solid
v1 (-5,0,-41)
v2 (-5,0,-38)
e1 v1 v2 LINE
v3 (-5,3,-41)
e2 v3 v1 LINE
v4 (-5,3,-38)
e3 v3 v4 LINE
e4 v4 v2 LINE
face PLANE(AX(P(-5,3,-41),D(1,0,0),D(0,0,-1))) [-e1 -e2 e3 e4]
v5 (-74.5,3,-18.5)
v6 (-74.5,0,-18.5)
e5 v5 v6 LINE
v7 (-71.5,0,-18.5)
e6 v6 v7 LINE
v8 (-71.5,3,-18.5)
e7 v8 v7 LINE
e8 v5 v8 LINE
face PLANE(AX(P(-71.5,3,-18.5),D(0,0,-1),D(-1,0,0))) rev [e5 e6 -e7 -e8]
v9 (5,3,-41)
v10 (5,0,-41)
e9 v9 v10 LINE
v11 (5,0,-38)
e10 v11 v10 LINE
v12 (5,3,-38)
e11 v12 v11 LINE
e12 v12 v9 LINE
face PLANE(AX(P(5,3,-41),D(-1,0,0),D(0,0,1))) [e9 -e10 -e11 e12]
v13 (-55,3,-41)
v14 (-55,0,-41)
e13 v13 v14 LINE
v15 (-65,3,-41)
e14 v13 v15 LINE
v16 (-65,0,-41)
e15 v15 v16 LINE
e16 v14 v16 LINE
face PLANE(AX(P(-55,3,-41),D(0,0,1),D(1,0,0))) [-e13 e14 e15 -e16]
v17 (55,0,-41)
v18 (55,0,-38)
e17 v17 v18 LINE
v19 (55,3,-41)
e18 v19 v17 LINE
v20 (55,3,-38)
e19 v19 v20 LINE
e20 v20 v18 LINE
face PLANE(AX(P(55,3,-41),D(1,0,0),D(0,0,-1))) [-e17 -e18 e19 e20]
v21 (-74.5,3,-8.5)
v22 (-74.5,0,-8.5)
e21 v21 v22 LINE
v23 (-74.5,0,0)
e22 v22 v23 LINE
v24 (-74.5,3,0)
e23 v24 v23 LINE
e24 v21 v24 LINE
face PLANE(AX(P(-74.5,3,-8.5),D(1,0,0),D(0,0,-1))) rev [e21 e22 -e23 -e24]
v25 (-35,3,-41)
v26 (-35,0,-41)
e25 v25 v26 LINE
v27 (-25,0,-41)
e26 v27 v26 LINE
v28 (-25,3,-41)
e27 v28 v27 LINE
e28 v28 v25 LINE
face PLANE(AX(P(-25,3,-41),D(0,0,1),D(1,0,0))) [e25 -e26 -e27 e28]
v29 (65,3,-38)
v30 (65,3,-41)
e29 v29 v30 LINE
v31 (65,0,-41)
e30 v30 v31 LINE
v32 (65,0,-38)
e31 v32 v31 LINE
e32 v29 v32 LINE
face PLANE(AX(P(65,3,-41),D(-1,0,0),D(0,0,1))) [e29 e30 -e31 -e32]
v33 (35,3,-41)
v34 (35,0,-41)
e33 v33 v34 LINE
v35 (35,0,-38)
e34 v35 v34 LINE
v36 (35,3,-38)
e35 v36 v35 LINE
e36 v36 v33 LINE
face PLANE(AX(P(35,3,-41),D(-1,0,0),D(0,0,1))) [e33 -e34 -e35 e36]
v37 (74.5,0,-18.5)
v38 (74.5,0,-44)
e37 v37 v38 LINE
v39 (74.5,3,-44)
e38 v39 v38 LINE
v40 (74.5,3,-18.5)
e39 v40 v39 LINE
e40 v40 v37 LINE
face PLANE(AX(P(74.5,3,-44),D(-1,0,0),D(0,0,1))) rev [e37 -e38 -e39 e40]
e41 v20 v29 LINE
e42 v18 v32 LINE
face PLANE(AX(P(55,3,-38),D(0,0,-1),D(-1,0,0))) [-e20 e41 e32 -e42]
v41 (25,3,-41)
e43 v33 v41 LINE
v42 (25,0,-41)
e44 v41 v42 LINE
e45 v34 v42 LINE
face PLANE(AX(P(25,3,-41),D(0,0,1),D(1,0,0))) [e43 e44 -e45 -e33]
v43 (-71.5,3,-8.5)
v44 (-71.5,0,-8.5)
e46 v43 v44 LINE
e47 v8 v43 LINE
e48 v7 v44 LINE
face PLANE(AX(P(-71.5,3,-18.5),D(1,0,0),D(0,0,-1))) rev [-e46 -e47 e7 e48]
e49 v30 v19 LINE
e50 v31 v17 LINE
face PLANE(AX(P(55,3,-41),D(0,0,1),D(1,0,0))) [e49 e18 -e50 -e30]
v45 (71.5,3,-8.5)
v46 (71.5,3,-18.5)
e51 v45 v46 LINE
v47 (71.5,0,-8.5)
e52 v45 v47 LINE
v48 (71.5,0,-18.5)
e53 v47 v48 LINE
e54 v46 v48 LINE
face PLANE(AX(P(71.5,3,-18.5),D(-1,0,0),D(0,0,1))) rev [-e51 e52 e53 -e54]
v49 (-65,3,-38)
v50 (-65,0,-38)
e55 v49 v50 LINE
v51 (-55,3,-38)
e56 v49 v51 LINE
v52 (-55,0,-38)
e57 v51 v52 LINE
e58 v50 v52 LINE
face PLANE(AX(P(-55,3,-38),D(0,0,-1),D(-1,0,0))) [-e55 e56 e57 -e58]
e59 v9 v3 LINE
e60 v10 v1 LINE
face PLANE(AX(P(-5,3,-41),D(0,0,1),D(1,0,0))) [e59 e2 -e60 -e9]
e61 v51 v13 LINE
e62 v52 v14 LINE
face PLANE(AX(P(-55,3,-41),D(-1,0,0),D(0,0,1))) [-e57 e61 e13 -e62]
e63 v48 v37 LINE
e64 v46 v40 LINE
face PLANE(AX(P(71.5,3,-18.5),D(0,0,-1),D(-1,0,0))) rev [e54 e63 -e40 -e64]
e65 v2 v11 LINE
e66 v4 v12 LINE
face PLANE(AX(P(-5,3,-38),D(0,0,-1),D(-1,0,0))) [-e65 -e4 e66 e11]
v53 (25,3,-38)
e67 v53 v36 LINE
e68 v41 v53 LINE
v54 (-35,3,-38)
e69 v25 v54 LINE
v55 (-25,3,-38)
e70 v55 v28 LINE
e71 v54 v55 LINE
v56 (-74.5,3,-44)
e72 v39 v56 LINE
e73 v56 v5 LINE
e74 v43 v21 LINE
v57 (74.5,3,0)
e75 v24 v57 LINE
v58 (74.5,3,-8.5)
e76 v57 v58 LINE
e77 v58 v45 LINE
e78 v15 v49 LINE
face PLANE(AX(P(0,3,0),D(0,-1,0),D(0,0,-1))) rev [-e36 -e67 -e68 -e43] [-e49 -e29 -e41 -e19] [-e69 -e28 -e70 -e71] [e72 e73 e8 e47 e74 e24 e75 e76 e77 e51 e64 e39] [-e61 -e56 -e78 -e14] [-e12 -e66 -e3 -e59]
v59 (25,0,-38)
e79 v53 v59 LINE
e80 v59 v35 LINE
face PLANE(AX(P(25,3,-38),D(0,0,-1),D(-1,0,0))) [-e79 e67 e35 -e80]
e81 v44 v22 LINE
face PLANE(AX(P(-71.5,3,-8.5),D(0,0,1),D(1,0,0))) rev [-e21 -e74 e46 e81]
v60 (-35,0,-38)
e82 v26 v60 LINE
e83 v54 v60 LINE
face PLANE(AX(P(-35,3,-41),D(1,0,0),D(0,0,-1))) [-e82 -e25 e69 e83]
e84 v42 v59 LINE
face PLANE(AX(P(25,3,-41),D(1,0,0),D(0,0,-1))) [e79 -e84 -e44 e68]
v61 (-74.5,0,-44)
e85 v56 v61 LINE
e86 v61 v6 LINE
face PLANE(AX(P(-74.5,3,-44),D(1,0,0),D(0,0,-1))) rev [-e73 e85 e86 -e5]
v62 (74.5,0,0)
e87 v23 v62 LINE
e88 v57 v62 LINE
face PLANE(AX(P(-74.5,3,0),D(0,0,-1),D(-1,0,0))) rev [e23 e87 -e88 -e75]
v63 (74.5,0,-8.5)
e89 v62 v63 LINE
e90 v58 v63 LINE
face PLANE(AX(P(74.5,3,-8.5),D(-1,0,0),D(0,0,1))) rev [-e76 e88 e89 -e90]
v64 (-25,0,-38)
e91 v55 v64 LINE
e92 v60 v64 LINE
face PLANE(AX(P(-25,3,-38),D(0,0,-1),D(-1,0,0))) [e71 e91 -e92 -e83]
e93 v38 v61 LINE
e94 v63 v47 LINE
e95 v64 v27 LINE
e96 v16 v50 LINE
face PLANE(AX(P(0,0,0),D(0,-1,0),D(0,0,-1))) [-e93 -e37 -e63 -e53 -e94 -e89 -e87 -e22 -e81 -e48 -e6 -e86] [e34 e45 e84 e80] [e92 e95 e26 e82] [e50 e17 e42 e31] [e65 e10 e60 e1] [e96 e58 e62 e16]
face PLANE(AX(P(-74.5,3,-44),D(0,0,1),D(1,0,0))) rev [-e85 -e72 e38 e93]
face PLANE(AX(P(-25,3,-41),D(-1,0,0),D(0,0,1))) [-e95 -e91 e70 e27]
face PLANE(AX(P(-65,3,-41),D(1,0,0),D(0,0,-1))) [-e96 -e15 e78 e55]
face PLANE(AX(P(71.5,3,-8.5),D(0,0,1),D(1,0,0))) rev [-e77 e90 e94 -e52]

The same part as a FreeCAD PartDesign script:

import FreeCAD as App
import Part
import Sketcher
from FreeCAD import Vector
Q = App.Units.Quantity

doc = App.newDocument("Part")
body = doc.addObject("PartDesign::Body", "Body")

# Sketch on XZ plane
sketch1 = body.newObject("Sketcher::SketchObject", "Sketch")
sketch1.AttachmentSupport = (doc.getObject("XZ_Plane"), [""])
sketch1.MapMode = "FlatFace"
sketch1.addGeometry([
    Part.LineSegment(Vector(74.5, -44, 0), Vector(-74.5, -44, 0)),  # 0
    Part.LineSegment(Vector(-74.5, -44, 0), Vector(-74.5, -18.5, 0)),  # 1
    Part.LineSegment(Vector(-74.5, -18.5, 0), Vector(-71.5, -18.5, 0)),  # 2
    Part.LineSegment(Vector(-71.5, -18.5, 0), Vector(-71.5, -8.5, 0)),  # 3
    Part.LineSegment(Vector(-71.5, -8.5, 0), Vector(-74.5, -8.5, 0)),  # 4
    Part.LineSegment(Vector(-74.5, -8.5, 0), Vector(-74.5, 0, 0)),  # 5
    Part.LineSegment(Vector(-74.5, 0, 0), Vector(74.5, 0, 0)),  # 6
    Part.LineSegment(Vector(74.5, 0, 0), Vector(74.5, -8.5, 0)),  # 7
    Part.LineSegment(Vector(74.5, -8.5, 0), Vector(71.5, -8.5, 0)),  # 8
    Part.LineSegment(Vector(71.5, -8.5, 0), Vector(71.5, -18.5, 0)),  # 9
    Part.LineSegment(Vector(71.5, -18.5, 0), Vector(74.5, -18.5, 0)),  # 10
    Part.LineSegment(Vector(74.5, -18.5, 0), Vector(74.5, -44, 0)),  # 11
    Part.LineSegment(Vector(55, -38, 0), Vector(55, -41, 0)),  # 12
    Part.LineSegment(Vector(55, -41, 0), Vector(65, -41, 0)),  # 13
    Part.LineSegment(Vector(65, -41, 0), Vector(65, -38, 0)),  # 14
    Part.LineSegment(Vector(65, -38, 0), Vector(55, -38, 0)),  # 15
    Part.LineSegment(Vector(25, -38, 0), Vector(25, -41, 0)),  # 16
    Part.LineSegment(Vector(25, -41, 0), Vector(35, -41, 0)),  # 17
    Part.LineSegment(Vector(35, -41, 0), Vector(35, -38, 0)),  # 18
    Part.LineSegment(Vector(35, -38, 0), Vector(25, -38, 0)),  # 19
    Part.LineSegment(Vector(-5, -38, 0), Vector(-5, -41, 0)),  # 20
    Part.LineSegment(Vector(-5, -41, 0), Vector(5, -41, 0)),  # 21
    Part.LineSegment(Vector(5, -41, 0), Vector(5, -38, 0)),  # 22
    Part.LineSegment(Vector(5, -38, 0), Vector(-5, -38, 0)),  # 23
    Part.LineSegment(Vector(-35, -38, 0), Vector(-35, -41, 0)),  # 24
    Part.LineSegment(Vector(-35, -41, 0), Vector(-25, -41, 0)),  # 25
    Part.LineSegment(Vector(-25, -41, 0), Vector(-25, -38, 0)),  # 26
    Part.LineSegment(Vector(-25, -38, 0), Vector(-35, -38, 0)),  # 27
    Part.LineSegment(Vector(-65, -38, 0), Vector(-65, -41, 0)),  # 28
    Part.LineSegment(Vector(-65, -41, 0), Vector(-55, -41, 0)),  # 29
    Part.LineSegment(Vector(-55, -41, 0), Vector(-55, -38, 0)),  # 30
    Part.LineSegment(Vector(-55, -38, 0), Vector(-65, -38, 0)),  # 31
], False)
sketch1.addConstraint([
    Sketcher.Constraint("Coincident", 0, 2, 1, 1),
    Sketcher.Constraint("Coincident", 1, 2, 2, 1),
    Sketcher.Constraint("Coincident", 2, 2, 3, 1),
    Sketcher.Constraint("Coincident", 3, 2, 4, 1),
    Sketcher.Constraint("Coincident", 4, 2, 5, 1),
    Sketcher.Constraint("Coincident", 5, 2, 6, 1),
    Sketcher.Constraint("Coincident", 6, 2, 7, 1),
    Sketcher.Constraint("Coincident", 7, 2, 8, 1),
    Sketcher.Constraint("Coincident", 8, 2, 9, 1),
    Sketcher.Constraint("Coincident", 9, 2, 10, 1),
    Sketcher.Constraint("Coincident", 10, 2, 11, 1),
    Sketcher.Constraint("Coincident", 11, 2, 0, 1),
    Sketcher.Constraint("Coincident", 12, 2, 13, 1),
    Sketcher.Constraint("Coincident", 13, 2, 14, 1),
    Sketcher.Constraint("Coincident", 14, 2, 15, 1),
    Sketcher.Constraint("Coincident", 15, 2, 12, 1),
    Sketcher.Constraint("Coincident", 16, 2, 17, 1),
    Sketcher.Constraint("Coincident", 17, 2, 18, 1),
    Sketcher.Constraint("Coincident", 18, 2, 19, 1),
    Sketcher.Constraint("Coincident", 19, 2, 16, 1),
    Sketcher.Constraint("Coincident", 20, 2, 21, 1),
    Sketcher.Constraint("Coincident", 21, 2, 22, 1),
    Sketcher.Constraint("Coincident", 22, 2, 23, 1),
    Sketcher.Constraint("Coincident", 23, 2, 20, 1),
    Sketcher.Constraint("Coincident", 24, 2, 25, 1),
    Sketcher.Constraint("Coincident", 25, 2, 26, 1),
    Sketcher.Constraint("Coincident", 26, 2, 27, 1),
    Sketcher.Constraint("Coincident", 27, 2, 24, 1),
    Sketcher.Constraint("Coincident", 28, 2, 29, 1),
    Sketcher.Constraint("Coincident", 29, 2, 30, 1),
    Sketcher.Constraint("Coincident", 30, 2, 31, 1),
    Sketcher.Constraint("Coincident", 31, 2, 28, 1),
    Sketcher.Constraint("Horizontal", 0),
    Sketcher.Constraint("Vertical", 1),
    Sketcher.Constraint("Horizontal", 2),
    Sketcher.Constraint("Vertical", 3),
    Sketcher.Constraint("Horizontal", 4),
    Sketcher.Constraint("Vertical", 5),
    Sketcher.Constraint("Horizontal", 6),
    Sketcher.Constraint("Vertical", 7),
    Sketcher.Constraint("Horizontal", 8),
    Sketcher.Constraint("Vertical", 9),
    Sketcher.Constraint("Horizontal", 10),
    Sketcher.Constraint("Vertical", 11),
    Sketcher.Constraint("Vertical", 12),
    Sketcher.Constraint("Horizontal", 13),
    Sketcher.Constraint("Vertical", 14),
    Sketcher.Constraint("Horizontal", 15),
    Sketcher.Constraint("Vertical", 16),
    Sketcher.Constraint("Horizontal", 17),
    Sketcher.Constraint("Vertical", 18),
    Sketcher.Constraint("Horizontal", 19),
    Sketcher.Constraint("Vertical", 20),
    Sketcher.Constraint("Horizontal", 21),
    Sketcher.Constraint("Vertical", 22),
    Sketcher.Constraint("Horizontal", 23),
    Sketcher.Constraint("Vertical", 24),
    Sketcher.Constraint("Horizontal", 25),
    Sketcher.Constraint("Vertical", 26),
    Sketcher.Constraint("Horizontal", 27),
    Sketcher.Constraint("Vertical", 28),
    Sketcher.Constraint("Horizontal", 29),
    Sketcher.Constraint("Vertical", 30),
    Sketcher.Constraint("Horizontal", 31),
    Sketcher.Constraint("Symmetric", 5, 2, 6, 2, -1, 1),
    Sketcher.Constraint("Symmetric", 3, 2, 8, 2, -2),
    Sketcher.Constraint("Symmetric", 1, 2, 10, 2, -2),
    Sketcher.Constraint("Symmetric", 17, 2, 24, 2, -2),
    Sketcher.Constraint("Symmetric", 19, 2, 26, 2, -2),
    Sketcher.Constraint("Symmetric", 13, 2, 28, 2, -2),
    Sketcher.Constraint("Symmetric", 15, 2, 30, 2, -2),
    Sketcher.Constraint("Horizontal", 13, 2, 16, 2),
    Sketcher.Constraint("Horizontal", 15, 2, 18, 2),
    Sketcher.Constraint("Horizontal", 17, 2, 20, 2),
    Sketcher.Constraint("Horizontal", 19, 2, 22, 2),
    Sketcher.Constraint("Vertical", 1, 2, 4, 2),
    Sketcher.Constraint("Equal", 15, 17),
    Sketcher.Constraint("Equal", 19, 21),
    Sketcher.Constraint("Equal", 31, 3),
    Sketcher.Constraint("Equal", 10, 12),
    Sketcher.Constraint("DistanceX", 0, 2, 0, 1, Q("149 mm")),
    Sketcher.Constraint("DistanceX", 2, 1, 2, 2, Q("3 mm")),
    Sketcher.Constraint("DistanceX", 13, 1, 13, 2, Q("10 mm")),
    Sketcher.Constraint("DistanceY", 1, 1, 1, 2, Q("25.5 mm")),
    Sketcher.Constraint("DistanceY", 5, 1, 5, 2, Q("8.5 mm")),
    Sketcher.Constraint("DistanceX", -1, 1, 12, 2, Q("55 mm")),
    Sketcher.Constraint("DistanceY", 12, 2, -1, 1, Q("41 mm")),
    Sketcher.Constraint("DistanceX", -1, 1, 16, 2, Q("25 mm")),
    Sketcher.Constraint("DistanceX", 20, 2, -1, 1, Q("5 mm")),
])
pad1 = body.newObject("PartDesign::Pad", "Pad")
pad1.Profile = sketch1
pad1.Length = 3
pad1.Reversed = True

doc.recompute()
